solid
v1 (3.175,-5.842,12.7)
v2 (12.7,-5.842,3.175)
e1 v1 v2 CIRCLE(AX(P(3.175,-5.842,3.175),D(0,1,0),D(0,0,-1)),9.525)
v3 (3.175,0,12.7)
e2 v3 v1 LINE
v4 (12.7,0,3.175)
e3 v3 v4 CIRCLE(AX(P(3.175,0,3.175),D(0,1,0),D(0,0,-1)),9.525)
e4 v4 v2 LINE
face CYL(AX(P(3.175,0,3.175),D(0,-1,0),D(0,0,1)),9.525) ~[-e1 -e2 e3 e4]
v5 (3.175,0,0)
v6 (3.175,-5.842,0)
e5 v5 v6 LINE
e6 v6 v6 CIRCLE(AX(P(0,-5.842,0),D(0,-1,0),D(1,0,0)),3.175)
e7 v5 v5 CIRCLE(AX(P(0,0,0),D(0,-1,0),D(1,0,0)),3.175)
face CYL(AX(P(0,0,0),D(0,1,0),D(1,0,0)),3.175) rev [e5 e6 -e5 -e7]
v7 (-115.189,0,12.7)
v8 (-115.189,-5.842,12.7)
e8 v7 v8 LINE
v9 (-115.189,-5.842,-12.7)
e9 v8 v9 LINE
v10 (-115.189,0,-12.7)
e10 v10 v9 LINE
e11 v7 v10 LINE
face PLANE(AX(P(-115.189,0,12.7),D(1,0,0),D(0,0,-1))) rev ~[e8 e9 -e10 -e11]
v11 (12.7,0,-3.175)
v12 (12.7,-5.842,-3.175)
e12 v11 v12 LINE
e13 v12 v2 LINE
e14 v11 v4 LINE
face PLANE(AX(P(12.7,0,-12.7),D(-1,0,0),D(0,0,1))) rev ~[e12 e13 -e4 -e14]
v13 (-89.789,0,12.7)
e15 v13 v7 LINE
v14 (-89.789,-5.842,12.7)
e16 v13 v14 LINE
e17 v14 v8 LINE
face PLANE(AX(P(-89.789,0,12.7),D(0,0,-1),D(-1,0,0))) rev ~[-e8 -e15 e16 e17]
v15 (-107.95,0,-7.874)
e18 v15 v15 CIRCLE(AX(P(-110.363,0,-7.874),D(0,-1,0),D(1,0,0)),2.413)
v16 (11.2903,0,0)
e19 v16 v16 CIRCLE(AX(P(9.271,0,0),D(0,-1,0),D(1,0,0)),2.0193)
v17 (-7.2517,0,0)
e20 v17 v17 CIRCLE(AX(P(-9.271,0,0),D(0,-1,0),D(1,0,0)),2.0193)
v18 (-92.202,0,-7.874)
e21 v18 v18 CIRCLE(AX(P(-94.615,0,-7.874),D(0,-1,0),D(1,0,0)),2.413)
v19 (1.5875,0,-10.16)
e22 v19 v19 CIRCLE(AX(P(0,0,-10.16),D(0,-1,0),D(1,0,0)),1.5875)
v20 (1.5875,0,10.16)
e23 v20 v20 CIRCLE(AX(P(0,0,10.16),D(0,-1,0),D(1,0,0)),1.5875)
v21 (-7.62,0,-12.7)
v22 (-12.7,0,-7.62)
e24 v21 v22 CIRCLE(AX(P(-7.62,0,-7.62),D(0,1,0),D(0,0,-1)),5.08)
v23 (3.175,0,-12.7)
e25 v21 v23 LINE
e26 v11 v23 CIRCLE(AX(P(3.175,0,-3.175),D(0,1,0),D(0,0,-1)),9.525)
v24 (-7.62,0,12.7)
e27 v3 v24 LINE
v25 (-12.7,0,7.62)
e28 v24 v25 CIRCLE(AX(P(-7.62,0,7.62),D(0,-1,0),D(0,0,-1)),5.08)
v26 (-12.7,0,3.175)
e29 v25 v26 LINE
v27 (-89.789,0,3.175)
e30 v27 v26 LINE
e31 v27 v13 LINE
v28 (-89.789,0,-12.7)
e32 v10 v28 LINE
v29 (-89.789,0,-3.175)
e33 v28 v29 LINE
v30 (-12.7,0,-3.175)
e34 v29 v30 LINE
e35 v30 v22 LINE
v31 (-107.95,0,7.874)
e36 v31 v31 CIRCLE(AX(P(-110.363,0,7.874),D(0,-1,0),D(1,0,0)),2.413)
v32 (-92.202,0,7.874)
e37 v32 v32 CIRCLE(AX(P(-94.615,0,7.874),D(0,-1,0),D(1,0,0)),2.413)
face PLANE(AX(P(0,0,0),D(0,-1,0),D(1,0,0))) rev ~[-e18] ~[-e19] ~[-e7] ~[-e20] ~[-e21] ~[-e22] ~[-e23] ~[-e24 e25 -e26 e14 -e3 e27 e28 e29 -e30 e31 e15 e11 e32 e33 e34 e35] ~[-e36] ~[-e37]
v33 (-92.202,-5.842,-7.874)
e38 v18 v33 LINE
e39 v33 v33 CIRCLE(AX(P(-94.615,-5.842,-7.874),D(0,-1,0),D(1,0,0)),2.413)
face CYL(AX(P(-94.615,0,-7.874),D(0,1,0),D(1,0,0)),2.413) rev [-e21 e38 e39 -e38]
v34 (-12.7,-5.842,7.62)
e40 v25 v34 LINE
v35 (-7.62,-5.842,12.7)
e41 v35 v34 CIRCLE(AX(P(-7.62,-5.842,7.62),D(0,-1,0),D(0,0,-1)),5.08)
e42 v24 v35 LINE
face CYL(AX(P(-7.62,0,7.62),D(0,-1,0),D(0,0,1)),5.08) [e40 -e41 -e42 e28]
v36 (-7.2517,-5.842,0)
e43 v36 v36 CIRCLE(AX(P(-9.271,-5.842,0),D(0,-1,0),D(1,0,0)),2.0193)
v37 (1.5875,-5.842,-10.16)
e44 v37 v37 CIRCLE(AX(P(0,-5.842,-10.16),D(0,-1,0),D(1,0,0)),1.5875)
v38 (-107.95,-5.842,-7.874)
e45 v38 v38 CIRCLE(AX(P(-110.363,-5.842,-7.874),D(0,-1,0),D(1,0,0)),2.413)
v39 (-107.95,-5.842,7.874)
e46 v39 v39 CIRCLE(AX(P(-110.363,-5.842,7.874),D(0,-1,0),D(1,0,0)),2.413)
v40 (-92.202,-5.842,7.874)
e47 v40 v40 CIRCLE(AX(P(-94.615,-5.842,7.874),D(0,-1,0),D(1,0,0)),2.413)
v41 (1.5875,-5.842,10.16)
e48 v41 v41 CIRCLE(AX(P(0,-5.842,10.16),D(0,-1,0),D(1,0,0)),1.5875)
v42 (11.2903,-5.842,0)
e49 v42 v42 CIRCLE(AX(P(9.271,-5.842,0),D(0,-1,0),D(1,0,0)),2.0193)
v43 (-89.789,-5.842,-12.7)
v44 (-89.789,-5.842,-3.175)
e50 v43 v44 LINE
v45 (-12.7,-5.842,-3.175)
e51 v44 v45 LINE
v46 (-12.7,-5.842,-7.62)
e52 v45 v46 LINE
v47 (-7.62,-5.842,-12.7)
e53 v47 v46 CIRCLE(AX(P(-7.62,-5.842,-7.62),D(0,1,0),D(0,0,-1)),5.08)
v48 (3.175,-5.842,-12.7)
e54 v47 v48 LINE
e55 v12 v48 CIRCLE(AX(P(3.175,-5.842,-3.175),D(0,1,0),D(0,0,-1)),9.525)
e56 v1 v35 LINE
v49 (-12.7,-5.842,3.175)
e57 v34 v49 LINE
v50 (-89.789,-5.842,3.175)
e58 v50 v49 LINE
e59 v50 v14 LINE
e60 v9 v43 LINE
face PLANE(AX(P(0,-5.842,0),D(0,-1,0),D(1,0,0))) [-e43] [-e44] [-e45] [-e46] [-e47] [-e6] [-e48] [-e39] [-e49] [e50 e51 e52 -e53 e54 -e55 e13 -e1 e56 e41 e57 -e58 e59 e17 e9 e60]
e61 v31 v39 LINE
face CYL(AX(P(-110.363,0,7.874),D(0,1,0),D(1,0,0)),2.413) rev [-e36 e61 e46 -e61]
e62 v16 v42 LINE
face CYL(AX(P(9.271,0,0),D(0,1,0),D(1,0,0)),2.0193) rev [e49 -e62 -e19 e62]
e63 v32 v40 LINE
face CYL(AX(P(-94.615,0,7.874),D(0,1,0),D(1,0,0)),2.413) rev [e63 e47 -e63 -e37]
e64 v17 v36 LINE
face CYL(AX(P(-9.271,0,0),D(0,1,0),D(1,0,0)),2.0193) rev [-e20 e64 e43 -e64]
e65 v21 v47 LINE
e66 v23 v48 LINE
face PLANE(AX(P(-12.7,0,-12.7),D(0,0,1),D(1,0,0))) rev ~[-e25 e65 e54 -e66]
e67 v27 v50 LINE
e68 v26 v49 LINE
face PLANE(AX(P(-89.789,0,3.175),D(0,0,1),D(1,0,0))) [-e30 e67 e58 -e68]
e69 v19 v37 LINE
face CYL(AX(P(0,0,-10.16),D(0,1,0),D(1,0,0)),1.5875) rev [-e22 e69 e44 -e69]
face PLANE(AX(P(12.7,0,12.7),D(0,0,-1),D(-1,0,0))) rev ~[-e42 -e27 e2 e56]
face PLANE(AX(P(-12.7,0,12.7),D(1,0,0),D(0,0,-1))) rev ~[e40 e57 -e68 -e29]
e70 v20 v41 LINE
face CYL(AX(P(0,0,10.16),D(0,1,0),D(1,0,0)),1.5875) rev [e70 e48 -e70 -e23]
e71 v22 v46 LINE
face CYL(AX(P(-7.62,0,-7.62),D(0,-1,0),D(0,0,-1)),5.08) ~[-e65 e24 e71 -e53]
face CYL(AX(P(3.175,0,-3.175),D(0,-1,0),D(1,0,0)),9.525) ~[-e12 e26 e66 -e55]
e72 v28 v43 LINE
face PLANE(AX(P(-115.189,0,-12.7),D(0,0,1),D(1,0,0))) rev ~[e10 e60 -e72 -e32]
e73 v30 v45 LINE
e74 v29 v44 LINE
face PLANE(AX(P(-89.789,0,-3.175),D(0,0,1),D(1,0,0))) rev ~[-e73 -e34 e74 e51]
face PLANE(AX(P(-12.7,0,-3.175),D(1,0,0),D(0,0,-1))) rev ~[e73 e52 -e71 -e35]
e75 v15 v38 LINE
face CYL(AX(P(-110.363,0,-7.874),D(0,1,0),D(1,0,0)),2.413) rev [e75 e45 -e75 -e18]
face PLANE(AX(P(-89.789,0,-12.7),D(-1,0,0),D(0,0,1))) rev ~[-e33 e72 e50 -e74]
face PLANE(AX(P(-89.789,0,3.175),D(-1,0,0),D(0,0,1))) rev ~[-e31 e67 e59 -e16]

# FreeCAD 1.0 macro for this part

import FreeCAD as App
import Part
import Sketcher
from FreeCAD import Vector
Q = App.Units.Quantity


def edges_at(feature, points):
    """Names of the edges that pass closest to the given points."""
    edges = feature.Shape.Edges
    near = lambda p: min(range(len(edges)), key=lambda i: edges[i].distToShape(Part.Vertex(*p))[0])
    return sorted({f"Edge{near(p) + 1}" for p in points})

doc = App.newDocument("Part")
body = doc.addObject("PartDesign::Body", "Body")

# Sketch on XZ plane
sketch1 = body.newObject("Sketcher::SketchObject", "Sketch")
sketch1.AttachmentSupport = (doc.getObject("XZ_Plane"), [""])
sketch1.MapMode = "FlatFace"
sketch1.addGeometry([
    Part.LineSegment(Vector(12.7, 12.7, 0), Vector(-12.7, 12.7, 0)),  # 0
    Part.LineSegment(Vector(-12.7, 12.7, 0), Vector(-12.7, 3.175, 0)),  # 1
    Part.LineSegment(Vector(-12.7, 3.175, 0), Vector(-89.789, 3.175, 0)),  # 2
    Part.LineSegment(Vector(-89.789, 3.175, 0), Vector(-89.789, 12.7, 0)),  # 3
    Part.LineSegment(Vector(-89.789, 12.7, 0), Vector(-115.189, 12.7, 0)),  # 4
    Part.LineSegment(Vector(-115.189, 12.7, 0), Vector(-115.189, -12.7, 0)),  # 5
    Part.LineSegment(Vector(-115.189, -12.7, 0), Vector(-89.789, -12.7, 0)),  # 6
    Part.LineSegment(Vector(-89.789, -12.7, 0), Vector(-89.789, -3.175, 0)),  # 7
    Part.LineSegment(Vector(-89.789, -3.175, 0), Vector(-12.7, -3.175, 0)),  # 8
    Part.LineSegment(Vector(-12.7, -3.175, 0), Vector(-12.7, -12.7, 0)),  # 9
    Part.LineSegment(Vector(-12.7, -12.7, 0), Vector(12.7, -12.7, 0)),  # 10
    Part.LineSegment(Vector(12.7, -12.7, 0), Vector(12.7, 12.7, 0)),  # 11
    Part.Circle(Vector(-110.363, -7.874, 0), Vector(0, 0, 1), 2.413),  # 12
    Part.Circle(Vector(-94.615, -7.874, 0), Vector(0, 0, 1), 2.413),  # 13
    Part.Circle(Vector(0, -10.16, 0), Vector(0, 0, 1), 1.5875),  # 14
    Part.Circle(Vector(-9.271, 0, 0), Vector(0, 0, 1), 2.0193),  # 15
    Part.Circle(Vector(0, 0, 0), Vector(0, 0, 1), 3.175),  # 16
    Part.Circle(Vector(9.271, 0, 0), Vector(0, 0, 1), 2.0193),  # 17
    Part.Circle(Vector(-110.363, 7.874, 0), Vector(0, 0, 1), 2.413),  # 18
    Part.Circle(Vector(-94.615, 7.874, 0), Vector(0, 0, 1), 2.413),  # 19
    Part.Circle(Vector(0, 10.16, 0), Vector(0, 0, 1), 1.5875),  # 20
], False)
sketch1.addConstraint([
    Sketcher.Constraint("Coincident", 0, 2, 1, 1),
    Sketcher.Constraint("Coincident", 1, 2, 2, 1),
    Sketcher.Constraint("Coincident", 2, 2, 3, 1),
    Sketcher.Constraint("Coincident", 3, 2, 4, 1),
    Sketcher.Constraint("Coincident", 4, 2, 5, 1),
    Sketcher.Constraint("Coincident", 5, 2, 6, 1),
    Sketcher.Constraint("Coincident", 6, 2, 7, 1),
    Sketcher.Constraint("Coincident", 7, 2, 8, 1),
    Sketcher.Constraint("Coincident", 8, 2, 9, 1),
    Sketcher.Constraint("Coincident", 9, 2, 10, 1),
    Sketcher.Constraint("Coincident", 10, 2, 11, 1),
    Sketcher.Constraint("Coincident", 11, 2, 0, 1),
    Sketcher.Constraint("Horizontal", 0),
    Sketcher.Constraint("Vertical", 1),
    Sketcher.Constraint("Horizontal", 2),
    Sketcher.Constraint("Vertical", 3),
    Sketcher.Constraint("Horizontal", 4),
    Sketcher.Constraint("Vertical", 5),
    Sketcher.Constraint("Horizontal", 6),
    Sketcher.Constraint("Vertical", 7),
    Sketcher.Constraint("Horizontal", 8),
    Sketcher.Constraint("Vertical", 9),
    Sketcher.Constraint("Horizontal", 10),
    Sketcher.Constraint("Vertical", 11),
    Sketcher.Constraint("Coincident", 16, 3, -1, 1),
    Sketcher.Constraint("Equal", 12, 13),
    Sketcher.Constraint("Equal", 15, 17),
    Sketcher.Constraint("Equal", 13, 18),
    Sketcher.Constraint("Equal", 18, 19),
    Sketcher.Constraint("Equal", 14, 20),
    Sketcher.Constraint("Symmetric", 15, 3, 17, 3, -1, 1),
    Sketcher.Constraint("Symmetric", 14, 3, 20, 3, -1, 1),
    Sketcher.Constraint("Symmetric", 0, 2, 10, 2, -1, 1),
    Sketcher.Constraint("Symmetric", 12, 3, 18, 3, -1),
    Sketcher.Constraint("Symmetric", 13, 3, 19, 3, -1),
    Sketcher.Constraint("Symmetric", 3, 2, 6, 2, -1),
    Sketcher.Constraint("Symmetric", 1, 2, 8, 2, -1),
    Sketcher.Constraint("PointOnObject", 14, 3, -2),
    Sketcher.Constraint("PointOnObject", 15, 3, -1),
    Sketcher.Constraint("Horizontal", 12, 3, 13, 3),
    Sketcher.Constraint("Horizontal", 0, 2, 3, 2),
    Sketcher.Constraint("Equal", 0, 4),
    Sketcher.Constraint("Equal", 10, 5),
    Sketcher.Constraint("Diameter", 12, Q("0.19 in")),
    Sketcher.Constraint("Diameter", 16, Q("0.25 in")),
    Sketcher.Constraint("DistanceX", 0, 2, 0, 1, Q("1 in")),
    Sketcher.Constraint("Diameter", 14, Q("0.125 in")),
    Sketcher.Constraint("Diameter", 15, Q("0.159 in")),
    Sketcher.Constraint("DistanceY", 14, 3, -1, 1, Q("0.4 in")),
    Sketcher.Constraint("DistanceX", 2, 2, 2, 1, Q("3.035 in")),
    Sketcher.Constraint("DistanceY", 1, 2, 1, 1, Q("0.375 in")),
    Sketcher.Constraint("DistanceY", 12, 3, -1, 1, Q("0.31 in")),
    Sketcher.Constraint("DistanceX", 12, 3, 13, 3, Q("0.62 in")),
    Sketcher.Constraint("DistanceX", 13, 3, 15, 3, Q("3.36 in")),
    Sketcher.Constraint("DistanceX", 15, 3, 17, 3, Q("0.73 in")),
])
pad1 = body.newObject("PartDesign::Pad", "Pad")
pad1.Profile = sketch1
pad1.Length = Q("0.23 in")
doc.recompute()

fillet = body.newObject("PartDesign::Fillet", "Fillet")
fillet.Base = (pad1, edges_at(pad1, [(12.7, -2.921, 12.7), (12.7, -2.921, -12.7)]))
fillet.Radius = Q("0.375 in")
doc.recompute()

fillet2 = body.newObject("PartDesign::Fillet", "Fillet001")
fillet2.Base = (fillet, edges_at(fillet, [(-12.7, -2.921, -12.7), (-12.7, -2.921, 12.7)]))
fillet2.Radius = Q("0.2 in")

doc.recompute()
